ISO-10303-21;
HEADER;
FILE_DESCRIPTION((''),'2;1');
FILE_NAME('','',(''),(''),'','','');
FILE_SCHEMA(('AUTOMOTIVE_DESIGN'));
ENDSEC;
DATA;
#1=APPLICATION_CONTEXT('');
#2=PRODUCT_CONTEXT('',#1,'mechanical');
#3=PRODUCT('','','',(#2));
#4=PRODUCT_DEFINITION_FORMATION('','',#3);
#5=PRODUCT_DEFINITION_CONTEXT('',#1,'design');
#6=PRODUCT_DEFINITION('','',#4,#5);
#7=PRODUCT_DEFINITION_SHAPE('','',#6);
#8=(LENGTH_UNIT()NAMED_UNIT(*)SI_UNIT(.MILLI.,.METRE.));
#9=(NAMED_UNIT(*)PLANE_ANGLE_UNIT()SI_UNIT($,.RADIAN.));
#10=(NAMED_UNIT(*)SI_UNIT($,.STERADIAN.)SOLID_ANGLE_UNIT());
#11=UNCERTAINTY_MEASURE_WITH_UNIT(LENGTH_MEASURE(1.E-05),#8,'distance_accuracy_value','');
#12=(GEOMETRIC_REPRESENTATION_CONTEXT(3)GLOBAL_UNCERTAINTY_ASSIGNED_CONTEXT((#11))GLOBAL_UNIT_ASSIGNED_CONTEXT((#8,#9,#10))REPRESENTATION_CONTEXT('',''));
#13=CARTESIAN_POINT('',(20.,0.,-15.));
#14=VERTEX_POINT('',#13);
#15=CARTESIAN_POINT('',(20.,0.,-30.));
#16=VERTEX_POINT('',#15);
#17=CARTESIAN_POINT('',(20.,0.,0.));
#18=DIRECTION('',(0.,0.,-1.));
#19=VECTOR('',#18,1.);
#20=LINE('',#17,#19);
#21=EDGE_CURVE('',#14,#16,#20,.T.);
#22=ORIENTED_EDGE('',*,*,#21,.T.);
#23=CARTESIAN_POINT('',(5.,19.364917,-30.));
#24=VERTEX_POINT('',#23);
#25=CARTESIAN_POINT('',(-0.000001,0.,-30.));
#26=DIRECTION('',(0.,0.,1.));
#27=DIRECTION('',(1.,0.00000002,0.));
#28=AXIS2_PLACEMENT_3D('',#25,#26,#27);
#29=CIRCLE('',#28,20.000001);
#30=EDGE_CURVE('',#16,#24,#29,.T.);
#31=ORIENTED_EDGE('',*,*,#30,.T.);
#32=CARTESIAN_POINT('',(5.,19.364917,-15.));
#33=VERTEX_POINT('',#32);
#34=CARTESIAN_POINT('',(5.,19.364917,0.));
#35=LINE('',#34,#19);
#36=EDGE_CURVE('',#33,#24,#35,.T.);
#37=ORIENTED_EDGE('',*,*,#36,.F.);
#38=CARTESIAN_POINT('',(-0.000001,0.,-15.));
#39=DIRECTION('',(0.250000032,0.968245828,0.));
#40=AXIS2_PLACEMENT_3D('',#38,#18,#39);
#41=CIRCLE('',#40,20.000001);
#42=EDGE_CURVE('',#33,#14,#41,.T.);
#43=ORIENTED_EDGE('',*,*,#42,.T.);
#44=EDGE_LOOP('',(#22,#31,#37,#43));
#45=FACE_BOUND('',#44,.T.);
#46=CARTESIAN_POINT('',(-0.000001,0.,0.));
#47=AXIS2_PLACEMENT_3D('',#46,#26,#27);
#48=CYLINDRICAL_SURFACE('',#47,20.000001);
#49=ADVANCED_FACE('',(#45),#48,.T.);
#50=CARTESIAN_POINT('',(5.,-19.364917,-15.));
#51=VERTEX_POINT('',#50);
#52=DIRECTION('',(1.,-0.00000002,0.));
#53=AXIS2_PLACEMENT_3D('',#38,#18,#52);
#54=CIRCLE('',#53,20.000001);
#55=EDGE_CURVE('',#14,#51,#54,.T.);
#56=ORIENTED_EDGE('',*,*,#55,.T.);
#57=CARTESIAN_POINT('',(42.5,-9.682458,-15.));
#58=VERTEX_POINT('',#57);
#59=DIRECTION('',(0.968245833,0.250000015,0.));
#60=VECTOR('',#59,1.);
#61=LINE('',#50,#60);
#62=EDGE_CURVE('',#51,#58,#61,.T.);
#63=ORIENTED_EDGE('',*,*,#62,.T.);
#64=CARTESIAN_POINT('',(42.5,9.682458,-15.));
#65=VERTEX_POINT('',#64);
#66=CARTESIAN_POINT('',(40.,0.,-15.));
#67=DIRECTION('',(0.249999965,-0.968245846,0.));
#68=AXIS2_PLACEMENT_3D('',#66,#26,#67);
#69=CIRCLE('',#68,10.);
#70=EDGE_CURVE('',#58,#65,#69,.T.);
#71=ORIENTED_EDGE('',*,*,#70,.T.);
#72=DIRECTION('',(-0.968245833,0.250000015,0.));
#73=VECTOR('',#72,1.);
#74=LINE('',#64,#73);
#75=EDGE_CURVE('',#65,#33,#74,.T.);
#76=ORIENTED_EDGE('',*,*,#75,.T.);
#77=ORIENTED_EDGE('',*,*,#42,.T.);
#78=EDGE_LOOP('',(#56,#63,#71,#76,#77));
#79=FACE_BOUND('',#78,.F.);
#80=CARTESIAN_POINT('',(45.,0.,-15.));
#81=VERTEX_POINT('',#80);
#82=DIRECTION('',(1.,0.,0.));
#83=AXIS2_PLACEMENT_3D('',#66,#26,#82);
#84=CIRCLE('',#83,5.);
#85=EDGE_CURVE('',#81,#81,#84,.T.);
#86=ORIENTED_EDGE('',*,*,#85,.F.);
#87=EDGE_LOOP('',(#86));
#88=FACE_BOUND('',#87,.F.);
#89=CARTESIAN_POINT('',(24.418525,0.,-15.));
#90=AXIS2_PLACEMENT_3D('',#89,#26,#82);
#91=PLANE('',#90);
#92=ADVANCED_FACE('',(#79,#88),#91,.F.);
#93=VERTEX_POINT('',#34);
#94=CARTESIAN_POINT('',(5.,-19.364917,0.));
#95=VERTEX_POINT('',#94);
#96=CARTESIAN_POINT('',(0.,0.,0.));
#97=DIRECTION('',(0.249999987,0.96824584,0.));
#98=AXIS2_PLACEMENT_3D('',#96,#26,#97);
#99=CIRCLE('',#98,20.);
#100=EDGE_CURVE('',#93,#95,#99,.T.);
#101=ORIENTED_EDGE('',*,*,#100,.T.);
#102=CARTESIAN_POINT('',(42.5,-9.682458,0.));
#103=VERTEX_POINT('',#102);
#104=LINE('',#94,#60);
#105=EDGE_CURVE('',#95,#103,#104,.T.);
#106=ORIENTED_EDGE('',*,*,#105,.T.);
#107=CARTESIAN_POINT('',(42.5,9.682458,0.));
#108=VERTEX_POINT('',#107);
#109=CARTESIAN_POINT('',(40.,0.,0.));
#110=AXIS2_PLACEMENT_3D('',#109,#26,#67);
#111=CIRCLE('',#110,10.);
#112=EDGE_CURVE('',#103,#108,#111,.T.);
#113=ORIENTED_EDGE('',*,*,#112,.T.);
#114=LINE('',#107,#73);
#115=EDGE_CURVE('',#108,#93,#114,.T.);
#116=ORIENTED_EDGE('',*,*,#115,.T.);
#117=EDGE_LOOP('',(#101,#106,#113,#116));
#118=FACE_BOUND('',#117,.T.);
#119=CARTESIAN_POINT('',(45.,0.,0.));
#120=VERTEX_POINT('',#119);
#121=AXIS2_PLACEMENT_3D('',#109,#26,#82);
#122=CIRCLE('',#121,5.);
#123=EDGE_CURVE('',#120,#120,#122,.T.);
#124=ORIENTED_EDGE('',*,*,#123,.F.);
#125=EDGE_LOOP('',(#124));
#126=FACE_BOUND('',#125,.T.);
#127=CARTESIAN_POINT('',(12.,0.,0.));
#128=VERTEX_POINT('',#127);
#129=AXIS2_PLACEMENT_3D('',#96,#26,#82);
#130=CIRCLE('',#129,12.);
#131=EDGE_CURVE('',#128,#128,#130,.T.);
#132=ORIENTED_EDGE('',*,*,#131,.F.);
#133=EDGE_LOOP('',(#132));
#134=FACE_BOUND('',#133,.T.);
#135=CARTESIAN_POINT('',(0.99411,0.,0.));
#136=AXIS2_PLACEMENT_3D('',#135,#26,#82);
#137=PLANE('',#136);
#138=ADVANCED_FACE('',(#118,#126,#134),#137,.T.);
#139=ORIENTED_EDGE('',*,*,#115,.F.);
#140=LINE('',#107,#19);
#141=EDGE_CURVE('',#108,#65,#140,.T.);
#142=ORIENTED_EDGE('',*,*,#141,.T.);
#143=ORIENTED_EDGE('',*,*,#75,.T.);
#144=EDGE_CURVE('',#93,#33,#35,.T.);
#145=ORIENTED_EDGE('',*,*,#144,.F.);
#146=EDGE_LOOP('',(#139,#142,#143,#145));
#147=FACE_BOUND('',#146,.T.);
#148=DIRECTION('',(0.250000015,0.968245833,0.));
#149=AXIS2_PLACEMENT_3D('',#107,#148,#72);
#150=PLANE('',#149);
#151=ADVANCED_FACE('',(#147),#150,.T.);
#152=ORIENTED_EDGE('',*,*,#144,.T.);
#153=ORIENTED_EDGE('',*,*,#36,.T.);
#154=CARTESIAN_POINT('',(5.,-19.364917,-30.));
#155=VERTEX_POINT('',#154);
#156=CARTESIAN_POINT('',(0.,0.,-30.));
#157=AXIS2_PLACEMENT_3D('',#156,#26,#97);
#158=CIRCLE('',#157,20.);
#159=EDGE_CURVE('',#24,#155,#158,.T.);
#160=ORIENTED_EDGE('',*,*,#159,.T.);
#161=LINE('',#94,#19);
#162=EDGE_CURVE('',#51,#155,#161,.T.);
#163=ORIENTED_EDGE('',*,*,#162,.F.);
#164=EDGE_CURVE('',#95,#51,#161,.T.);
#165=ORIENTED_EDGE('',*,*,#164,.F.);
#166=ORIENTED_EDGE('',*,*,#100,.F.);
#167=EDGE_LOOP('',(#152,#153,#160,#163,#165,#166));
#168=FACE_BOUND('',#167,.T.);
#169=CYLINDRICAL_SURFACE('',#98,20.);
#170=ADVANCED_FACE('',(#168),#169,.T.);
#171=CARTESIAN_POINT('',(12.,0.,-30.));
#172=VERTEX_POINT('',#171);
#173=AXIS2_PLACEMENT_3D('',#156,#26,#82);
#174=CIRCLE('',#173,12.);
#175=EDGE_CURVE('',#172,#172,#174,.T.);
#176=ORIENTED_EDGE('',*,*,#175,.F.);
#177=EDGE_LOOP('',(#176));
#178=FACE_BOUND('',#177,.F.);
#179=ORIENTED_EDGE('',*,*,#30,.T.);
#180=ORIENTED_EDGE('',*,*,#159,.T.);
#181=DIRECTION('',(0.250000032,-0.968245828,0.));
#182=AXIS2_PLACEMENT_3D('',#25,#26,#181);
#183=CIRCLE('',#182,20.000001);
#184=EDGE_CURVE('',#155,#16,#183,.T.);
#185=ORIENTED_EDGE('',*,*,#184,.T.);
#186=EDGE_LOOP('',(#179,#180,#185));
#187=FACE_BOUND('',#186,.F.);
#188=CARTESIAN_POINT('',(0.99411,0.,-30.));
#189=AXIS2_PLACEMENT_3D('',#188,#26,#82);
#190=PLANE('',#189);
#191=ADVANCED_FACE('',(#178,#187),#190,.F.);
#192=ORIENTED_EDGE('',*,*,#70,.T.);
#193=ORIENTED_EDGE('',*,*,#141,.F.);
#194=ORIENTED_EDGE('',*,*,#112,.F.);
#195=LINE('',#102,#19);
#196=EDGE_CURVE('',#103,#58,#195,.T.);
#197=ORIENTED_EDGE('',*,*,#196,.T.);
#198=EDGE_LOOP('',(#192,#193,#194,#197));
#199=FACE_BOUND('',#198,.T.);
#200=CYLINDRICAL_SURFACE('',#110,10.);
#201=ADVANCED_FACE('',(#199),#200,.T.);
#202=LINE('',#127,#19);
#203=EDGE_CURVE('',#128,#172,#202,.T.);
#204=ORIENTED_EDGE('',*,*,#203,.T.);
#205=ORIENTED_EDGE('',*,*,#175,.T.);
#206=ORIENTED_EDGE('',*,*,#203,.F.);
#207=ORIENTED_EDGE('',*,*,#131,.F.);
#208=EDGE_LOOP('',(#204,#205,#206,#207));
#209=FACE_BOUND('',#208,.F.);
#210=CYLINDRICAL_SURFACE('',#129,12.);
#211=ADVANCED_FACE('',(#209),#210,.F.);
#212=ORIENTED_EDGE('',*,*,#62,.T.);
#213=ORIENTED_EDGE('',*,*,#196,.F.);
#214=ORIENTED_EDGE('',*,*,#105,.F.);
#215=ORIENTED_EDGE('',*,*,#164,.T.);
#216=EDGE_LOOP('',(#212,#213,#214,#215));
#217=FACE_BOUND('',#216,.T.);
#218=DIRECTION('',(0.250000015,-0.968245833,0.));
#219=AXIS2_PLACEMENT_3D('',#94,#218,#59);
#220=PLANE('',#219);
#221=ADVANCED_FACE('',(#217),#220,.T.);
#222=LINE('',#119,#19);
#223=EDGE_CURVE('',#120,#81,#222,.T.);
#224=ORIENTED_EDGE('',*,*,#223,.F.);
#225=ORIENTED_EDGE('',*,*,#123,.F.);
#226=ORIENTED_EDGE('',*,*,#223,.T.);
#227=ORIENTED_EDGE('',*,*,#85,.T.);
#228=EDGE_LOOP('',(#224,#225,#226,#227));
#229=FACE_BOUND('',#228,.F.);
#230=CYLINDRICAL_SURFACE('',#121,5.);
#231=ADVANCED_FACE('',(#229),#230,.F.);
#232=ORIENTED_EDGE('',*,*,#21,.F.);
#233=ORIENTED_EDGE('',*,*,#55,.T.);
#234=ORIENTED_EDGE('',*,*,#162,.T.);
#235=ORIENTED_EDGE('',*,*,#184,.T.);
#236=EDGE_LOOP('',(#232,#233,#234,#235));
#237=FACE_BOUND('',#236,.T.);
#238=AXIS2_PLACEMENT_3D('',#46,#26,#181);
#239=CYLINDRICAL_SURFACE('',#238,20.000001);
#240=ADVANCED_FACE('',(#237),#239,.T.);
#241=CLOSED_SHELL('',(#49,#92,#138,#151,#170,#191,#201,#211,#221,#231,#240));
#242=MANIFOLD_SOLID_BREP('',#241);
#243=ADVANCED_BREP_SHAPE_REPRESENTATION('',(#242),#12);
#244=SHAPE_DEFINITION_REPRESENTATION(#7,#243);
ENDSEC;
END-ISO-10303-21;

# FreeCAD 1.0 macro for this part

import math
import FreeCAD as App
import Part
import Sketcher

V = App.Vector
Q = App.Units.Quantity

doc = App.newDocument("Part")
params = doc.addObject("Spreadsheet::Sheet", "Params")
for row, (alias, value) in enumerate([
    ("sketch1_diameter", "10 mm"),
    ("sketch1_radius", "20.000001 mm"),
    ("sketch1_radius2", "10 mm"),
    ("pad1_length", "15 mm"),
    ("sketch2_diameter", "24 mm"),
    ("sketch2_radius", "20.000001 mm"),
    ("pad2_length", "30 mm"),
], start=1):
    params.set(f"A{row}", alias)
    params.set(f"B{row}", "=" + value)
    params.setAlias(f"B{row}", alias)

body = doc.addObject("PartDesign::Body", "Body")

# Sketch on XY plane
sketch1 = body.newObject("Sketcher::SketchObject", "Sketch")
sketch1.AttachmentSupport = (doc.getObject("XY_Plane"), [""])
sketch1.MapMode = "FlatFace"
sketch1.addGeometry(Part.ArcOfCircle(Part.Circle(V(0, 0, 0), V(0, 0, 1), 20), math.radians(0), math.radians(76)), False)
sketch1.addGeometry(Part.ArcOfCircle(Part.Circle(V(0, 0, 0), V(0, 0, 1), 20), math.radians(-76), math.radians(0)), False)
sketch1.addGeometry(Part.LineSegment(V(5, -19, 0), V(42, -10, 0)), False)
sketch1.addGeometry(Part.ArcOfCircle(Part.Circle(V(40, 0, 0), V(0, 0, 1), 10), math.radians(-76), math.radians(76)), False)
sketch1.addGeometry(Part.LineSegment(V(42, 10, 0), V(5, 19, 0)), False)
sketch1.addGeometry(Part.Circle(V(40, 0, 0), V(0, 0, 1), 5), False)
sketch1.addConstraint(Sketcher.Constraint("Tangent", 0, 1, 1, 2))
sketch1.addConstraint(Sketcher.Constraint("Tangent", 1, 1, 2, 1))
sketch1.addConstraint(Sketcher.Constraint("Tangent", 2, 2, 3, 1))
sketch1.addConstraint(Sketcher.Constraint("Tangent", 3, 2, 4, 1))
sketch1.addConstraint(Sketcher.Constraint("Tangent", 4, 2, 0, 2))
sketch1.addConstraint(Sketcher.Constraint("Coincident", 0, 3, -1, 1))
sketch1.addConstraint(Sketcher.Constraint("Coincident", 5, 3, 3, 3))
sketch1.addConstraint(Sketcher.Constraint("Equal", 0, 1))
sketch1.addConstraint(Sketcher.Constraint("PointOnObject", 3, 3, -1))
sketch1.addConstraint(Sketcher.Constraint("PointOnObject", 0, 1, -1))
sketch1.addConstraint(Sketcher.Constraint("Diameter", 5, Q("10 mm")))
sketch1.addConstraint(Sketcher.Constraint("Radius", 0, Q("20.000001 mm")))
sketch1.addConstraint(Sketcher.Constraint("Radius", 3, Q("10 mm")))
sketch1.addConstraint(Sketcher.Constraint("DistanceX", -1, 1, 3, 3, Q("40 mm")))
sketch1.setExpression("Constraints[10]", "Params.sketch1_diameter")
sketch1.setExpression("Constraints[11]", "Params.sketch1_radius")
sketch1.setExpression("Constraints[12]", "Params.sketch1_radius2")
pad1 = body.newObject("PartDesign::Pad", "Pad")
pad1.Profile = sketch1
pad1.setExpression("Length", "Params.pad1_length")
pad1.Reversed = True

# Sketch on XY plane
sketch2 = body.newObject("Sketcher::SketchObject", "Sketch001")
sketch2.AttachmentSupport = (doc.getObject("XY_Plane"), [""])
sketch2.MapMode = "FlatFace"
sketch2.addGeometry(Part.ArcOfCircle(Part.Circle(V(0, 0, 0), V(0, 0, 1), 20), math.radians(-76), math.radians(0)), False)
sketch2.addGeometry(Part.ArcOfCircle(Part.Circle(V(0, 0, 0), V(0, 0, 1), 20), math.radians(0), math.radians(76)), False)
sketch2.addGeometry(Part.ArcOfCircle(Part.Circle(V(0, 0, 0), V(0, 0, 1), 20), math.radians(76), math.radians(284)), False)
sketch2.addGeometry(Part.Circle(V(0, 0, 0), V(0, 0, 1), 12), False)
sketch2.addConstraint(Sketcher.Constraint("Tangent", 0, 2, 1, 1))
sketch2.addConstraint(Sketcher.Constraint("Tangent", 1, 2, 2, 1))
sketch2.addConstraint(Sketcher.Constraint("Tangent", 2, 2, 0, 1))
sketch2.addConstraint(Sketcher.Constraint("Coincident", 0, 3, -1, 1))
sketch2.addConstraint(Sketcher.Constraint("Coincident", 3, 3, -1, 1))
sketch2.addConstraint(Sketcher.Constraint("PointOnObject", 0, 2, -1))
sketch2.addConstraint(Sketcher.Constraint("Vertical", 1, 2, 2, 2))
sketch2.addConstraint(Sketcher.Constraint("Diameter", 3, Q("24 mm")))
sketch2.addConstraint(Sketcher.Constraint("Radius", 0, Q("20.000001 mm")))
sketch2.addConstraint(Sketcher.Constraint("DistanceX", -1, 1, 1, 2, Q("5 mm")))
sketch2.setExpression("Constraints[7]", "Params.sketch2_diameter")
sketch2.setExpression("Constraints[8]", "Params.sketch2_radius")
pad2 = body.newObject("PartDesign::Pad", "Pad001")
pad2.Profile = sketch2
pad2.setExpression("Length", "Params.pad2_length")
pad2.Reversed = True

doc.recompute()
